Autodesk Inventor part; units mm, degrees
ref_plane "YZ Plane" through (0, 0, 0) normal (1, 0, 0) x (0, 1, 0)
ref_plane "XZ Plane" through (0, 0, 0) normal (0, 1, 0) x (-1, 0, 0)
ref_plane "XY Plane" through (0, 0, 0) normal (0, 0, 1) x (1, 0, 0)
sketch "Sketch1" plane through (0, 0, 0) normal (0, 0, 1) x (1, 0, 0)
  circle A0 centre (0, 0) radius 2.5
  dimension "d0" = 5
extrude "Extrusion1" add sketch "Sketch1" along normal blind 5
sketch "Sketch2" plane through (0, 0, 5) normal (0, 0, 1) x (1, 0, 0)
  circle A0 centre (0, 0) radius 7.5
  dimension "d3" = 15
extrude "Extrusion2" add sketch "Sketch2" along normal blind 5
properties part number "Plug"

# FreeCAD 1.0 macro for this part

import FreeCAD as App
import Part
import Sketcher

V = App.Vector
Q = App.Units.Quantity

doc = App.newDocument("Part")
params = doc.addObject("Spreadsheet::Sheet", "Params")
for row, (alias, value) in enumerate([
    ("sketch1_diameter", "5 mm"),
    ("pad1_length", "5 mm"),
    ("sketch2_diameter", "15 mm"),
    ("pad2_length", "5 mm"),
], start=1):
    params.set(f"A{row}", alias)
    params.set(f"B{row}", "=" + value)
    params.setAlias(f"B{row}", alias)

body = doc.addObject("PartDesign::Body", "Body")

sketch1 = doc.addObject("Sketcher::SketchObject", "Sketch")
body.addObject(sketch1)
sketch1.AttachmentSupport = (doc.XY_Plane, [""])
sketch1.MapMode = "FlatFace"
sketch1.addGeometry(Part.Circle(V(0, 0, 0), V(0, 0, 1), 2.5), False)
sketch1.addConstraint([
    Sketcher.Constraint("Coincident", 0, 3, -1, 1),
    Sketcher.Constraint("Diameter", 0, Q("5 mm")),
])
sketch1.setExpression("Constraints[1]", "Params.sketch1_diameter")
pad1 = doc.addObject("PartDesign::Pad", "Pad")
body.addObject(pad1)
pad1.Profile = sketch1
pad1.setExpression("Length", "Params.pad1_length")

sketch2 = doc.addObject("Sketcher::SketchObject", "Sketch001")
body.addObject(sketch2)
sketch2.AttachmentSupport = (doc.XY_Plane, [""])
sketch2.MapMode = "FlatFace"
sketch2.AttachmentOffset = App.Placement(V(0, 0, 5), App.Rotation())
sketch2.addGeometry(Part.Circle(V(0, 0, 0), V(0, 0, 1), 7.5), False)
sketch2.addConstraint([
    Sketcher.Constraint("Coincident", 0, 3, -1, 1),
    Sketcher.Constraint("Diameter", 0, Q("15 mm")),
])
sketch2.setExpression("Constraints[1]", "Params.sketch2_diameter")
pad2 = doc.addObject("PartDesign::Pad", "Pad001")
body.addObject(pad2)
pad2.Profile = sketch2
pad2.setExpression("Length", "Params.pad2_length")

doc.recompute()
